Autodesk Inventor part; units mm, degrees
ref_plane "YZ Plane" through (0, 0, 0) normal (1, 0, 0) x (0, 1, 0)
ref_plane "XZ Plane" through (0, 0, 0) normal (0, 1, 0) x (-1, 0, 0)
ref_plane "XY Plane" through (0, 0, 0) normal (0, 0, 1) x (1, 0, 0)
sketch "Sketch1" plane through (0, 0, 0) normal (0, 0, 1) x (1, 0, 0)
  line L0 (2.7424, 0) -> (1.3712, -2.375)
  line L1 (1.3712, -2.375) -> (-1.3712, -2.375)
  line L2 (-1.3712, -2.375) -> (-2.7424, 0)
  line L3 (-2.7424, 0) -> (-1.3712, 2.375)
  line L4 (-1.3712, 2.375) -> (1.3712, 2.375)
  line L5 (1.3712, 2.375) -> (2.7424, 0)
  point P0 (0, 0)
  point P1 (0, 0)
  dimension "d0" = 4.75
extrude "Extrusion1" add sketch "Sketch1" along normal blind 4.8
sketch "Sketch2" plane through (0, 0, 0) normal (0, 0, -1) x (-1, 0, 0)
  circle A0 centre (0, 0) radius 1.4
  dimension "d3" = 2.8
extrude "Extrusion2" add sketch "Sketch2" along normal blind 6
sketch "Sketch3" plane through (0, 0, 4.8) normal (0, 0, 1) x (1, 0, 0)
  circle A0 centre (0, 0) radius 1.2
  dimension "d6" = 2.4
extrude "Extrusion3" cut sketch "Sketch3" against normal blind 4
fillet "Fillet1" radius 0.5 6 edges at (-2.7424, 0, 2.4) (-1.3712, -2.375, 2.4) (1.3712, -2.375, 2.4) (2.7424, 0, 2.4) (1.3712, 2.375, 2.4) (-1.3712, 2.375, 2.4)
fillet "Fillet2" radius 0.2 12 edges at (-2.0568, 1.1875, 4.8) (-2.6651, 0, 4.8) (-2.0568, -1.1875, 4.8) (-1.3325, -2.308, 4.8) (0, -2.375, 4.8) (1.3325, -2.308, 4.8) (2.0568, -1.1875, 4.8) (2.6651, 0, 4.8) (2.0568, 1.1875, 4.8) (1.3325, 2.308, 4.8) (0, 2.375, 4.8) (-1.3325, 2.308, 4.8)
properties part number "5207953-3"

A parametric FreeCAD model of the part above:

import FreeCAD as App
import Part
import Sketcher

V = App.Vector
Q = App.Units.Quantity


def edges_at(feature, points):
    """Names of the edges that pass closest to the given points."""
    edges = feature.Shape.Edges
    near = lambda p: min(range(len(edges)), key=lambda i: edges[i].distToShape(Part.Vertex(*p))[0])
    return sorted({f"Edge{near(p) + 1}" for p in points})


def add_polygon(sketch, points):
    """Adds a closed chain of lines whose ends are joined by coincident constraints."""
    first, n = sketch.GeometryCount, len(points)
    for a, b in zip(points, points[1:] + points[:1]):
        sketch.addGeometry(Part.LineSegment(App.Vector(*a, 0), App.Vector(*b, 0)), False)
    for i in range(n):
        sketch.addConstraint(Sketcher.Constraint("Coincident", first + i, 2, first + (i + 1) % n, 1))

doc = App.newDocument("Part")
params = doc.addObject("Spreadsheet::Sheet", "Params")
for row, (alias, value) in enumerate([
    ("pad1_length", "4.8 mm"),
    ("sketch2_diameter", "2.8 mm"),
    ("pad2_length", "6 mm"),
    ("sketch3_diameter", "2.4 mm"),
    ("pocket1_length", "4 mm"),
    ("fillet_radius", "0.5 mm"),
    ("fillet2_radius", "0.2 mm"),
], start=1):
    params.set(f"A{row}", alias)
    params.set(f"B{row}", "=" + value)
    params.setAlias(f"B{row}", alias)

body = doc.addObject("PartDesign::Body", "Body")

sketch1 = body.newObject("Sketcher::SketchObject", "Sketch")
sketch1.AttachmentSupport = (doc.getObject("XY_Plane"), [""])
sketch1.MapMode = "FlatFace"
add_polygon(sketch1, [(1.4, -2.4), (2.7, 0), (1.4, 2.4), (-1.4, 2.4), (-2.7, 0), (-1.4, -2.4)])
sketch1.addConstraint([
    Sketcher.Constraint("Horizontal", 2),
    Sketcher.Constraint("Horizontal", 5),
    Sketcher.Constraint("Symmetric", 0, 2, 3, 2, -1, 1),
    Sketcher.Constraint("Symmetric", 1, 2, 4, 2, -1, 1),
    Sketcher.Constraint("PointOnObject", 0, 2, -1),
    Sketcher.Constraint("Parallel", 0, 3),
    Sketcher.Constraint("Vertical", 2, 2, 4, 2),
    Sketcher.Constraint("Angle", 0, Q("60.0001 deg")),
    Sketcher.Constraint("DistanceY", 4, 2, 2, 2, 4.75),
    Sketcher.Constraint("DistanceX", 2, 2, 2, 1, 2.7424),
])
pad1 = body.newObject("PartDesign::Pad", "Pad")
pad1.Profile = sketch1
pad1.setExpression("Length", "Params.pad1_length")

sketch2 = body.newObject("Sketcher::SketchObject", "Sketch001")
sketch2.AttachmentSupport = (doc.getObject("XY_Plane"), [""])
sketch2.MapMode = "FlatFace"
sketch2.addGeometry(Part.Circle(V(0, 0, 0), V(0, 0, 1), 1.4), False)
sketch2.addConstraint([
    Sketcher.Constraint("Coincident", 0, 3, -1, 1),
    Sketcher.Constraint("Diameter", 0, 2.8),
])
sketch2.setExpression("Constraints[1]", "Params.sketch2_diameter")
pad2 = body.newObject("PartDesign::Pad", "Pad001")
pad2.Profile = sketch2
pad2.setExpression("Length", "Params.pad2_length")
pad2.Reversed = True

sketch3 = body.newObject("Sketcher::SketchObject", "Sketch002")
sketch3.AttachmentSupport = (doc.getObject("XY_Plane"), [""])
sketch3.MapMode = "FlatFace"
sketch3.AttachmentOffset = App.Placement(V(0, 0, 4.8), App.Rotation())
sketch3.addGeometry(Part.Circle(V(0, 0, 0), V(0, 0, 1), 1.2), False)
sketch3.addConstraint([
    Sketcher.Constraint("Coincident", 0, 3, -1, 1),
    Sketcher.Constraint("Diameter", 0, 2.4),
])
sketch3.setExpression("Constraints[1]", "Params.sketch3_diameter")
pocket1 = body.newObject("PartDesign::Pocket", "Pocket")
pocket1.Profile = sketch3
pocket1.setExpression("Length", "Params.pocket1_length")
doc.recompute()

fillet = body.newObject("PartDesign::Fillet", "Fillet")
fillet.Base = (pocket1, edges_at(pocket1, [
    (-2.742, 0, 2.4),
    (-1.371, -2.375, 2.4),
    (1.371, -2.375, 2.4),
    (2.742, 0, 2.4),
    (1.371, 2.375, 2.4),
    (-1.371, 2.375, 2.4),
]))
fillet.setExpression("Radius", "Params.fillet_radius")
doc.recompute()

fillet2 = body.newObject("PartDesign::Fillet", "Fillet001")
fillet2.Base = (fillet, edges_at(fillet, [
    (-2.057, 1.188, 4.8),
    (-2.665, 0, 4.8),
    (-2.057, -1.188, 4.8),
    (-1.333, -2.308, 4.8),
    (0, -2.375, 4.8),
    (1.333, -2.308, 4.8),
    (2.057, -1.188, 4.8),
    (2.665, 0, 4.8),
    (2.057, 1.188, 4.8),
    (1.333, 2.308, 4.8),
    (0, 2.375, 4.8),
    (-1.333, 2.308, 4.8),
]))
fillet2.setExpression("Radius", "Params.fillet2_radius")

doc.recompute()
